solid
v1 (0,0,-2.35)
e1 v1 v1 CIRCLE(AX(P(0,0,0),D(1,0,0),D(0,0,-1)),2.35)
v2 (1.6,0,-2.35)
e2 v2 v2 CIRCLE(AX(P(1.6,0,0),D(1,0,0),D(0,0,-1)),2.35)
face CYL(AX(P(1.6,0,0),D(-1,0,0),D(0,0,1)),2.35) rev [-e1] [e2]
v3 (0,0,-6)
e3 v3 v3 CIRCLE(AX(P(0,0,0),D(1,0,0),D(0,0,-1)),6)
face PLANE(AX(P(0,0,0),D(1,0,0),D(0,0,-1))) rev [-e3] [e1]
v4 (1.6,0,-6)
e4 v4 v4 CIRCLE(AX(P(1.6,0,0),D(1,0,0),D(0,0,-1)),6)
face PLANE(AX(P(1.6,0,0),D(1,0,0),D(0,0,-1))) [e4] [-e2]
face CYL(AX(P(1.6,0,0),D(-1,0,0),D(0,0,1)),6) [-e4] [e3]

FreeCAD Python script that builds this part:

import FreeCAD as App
import Part
import Sketcher

V = App.Vector

doc = App.newDocument("Part")
body = doc.addObject("PartDesign::Body", "Body")

sketch1 = body.newObject("Sketcher::SketchObject", "Sketch")
sketch1.AttachmentSupport = (doc.getObject("YZ_Plane"), [""])
sketch1.MapMode = "FlatFace"
sketch1.addGeometry([
    Part.Circle(V(0, 0, 0), V(0, 0, 1), 6),
    Part.Circle(V(0, 0, 0), V(0, 0, 1), 2.4),
], False)
sketch1.addConstraint([
    Sketcher.Constraint("Coincident", 0, 3, -1, 1),
    Sketcher.Constraint("Coincident", 1, 3, -1, 1),
    Sketcher.Constraint("Diameter", 0, 12.0),
    Sketcher.Constraint("Diameter", 1, 4.7),
])
pad1 = body.newObject("PartDesign::Pad", "Pad")
pad1.Profile = sketch1
pad1.Length = 1.6

doc.recompute()
